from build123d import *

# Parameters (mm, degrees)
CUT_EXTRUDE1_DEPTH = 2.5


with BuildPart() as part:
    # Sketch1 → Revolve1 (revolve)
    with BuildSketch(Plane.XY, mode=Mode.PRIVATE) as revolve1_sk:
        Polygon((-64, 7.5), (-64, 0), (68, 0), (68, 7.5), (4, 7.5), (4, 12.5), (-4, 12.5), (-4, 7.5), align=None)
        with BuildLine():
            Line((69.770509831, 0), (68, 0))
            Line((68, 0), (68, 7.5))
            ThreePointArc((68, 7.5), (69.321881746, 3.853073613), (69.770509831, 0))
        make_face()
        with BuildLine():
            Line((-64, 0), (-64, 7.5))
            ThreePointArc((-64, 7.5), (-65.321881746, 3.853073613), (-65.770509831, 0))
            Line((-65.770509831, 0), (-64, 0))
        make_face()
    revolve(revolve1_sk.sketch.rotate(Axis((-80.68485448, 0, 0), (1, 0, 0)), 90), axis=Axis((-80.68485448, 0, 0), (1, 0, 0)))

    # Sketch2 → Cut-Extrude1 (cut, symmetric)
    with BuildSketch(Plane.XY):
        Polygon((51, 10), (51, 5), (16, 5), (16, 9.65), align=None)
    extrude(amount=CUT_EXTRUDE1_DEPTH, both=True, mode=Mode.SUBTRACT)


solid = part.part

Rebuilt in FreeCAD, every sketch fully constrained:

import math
import FreeCAD as App
import Part
import Sketcher
from FreeCAD import Vector
Q = App.Units.Quantity


def add_polygon(sketch, points):
    """Adds a closed chain of lines whose ends are joined by coincident constraints."""
    first, n = sketch.GeometryCount, len(points)
    for a, b in zip(points, points[1:] + points[:1]):
        sketch.addGeometry(Part.LineSegment(App.Vector(*a, 0), App.Vector(*b, 0)), False)
    for i in range(n):
        sketch.addConstraint(Sketcher.Constraint("Coincident", first + i, 2, first + (i + 1) % n, 1))

doc = App.newDocument("Part")
body = doc.addObject("PartDesign::Body", "Body")

# Sketch on XY plane
sketch1 = body.newObject("Sketcher::SketchObject", "Sketch")
sketch1.AttachmentSupport = (doc.getObject("XY_Plane"), [""])
sketch1.MapMode = "FlatFace"
sketch1.addGeometry([
    Part.ArcOfCircle(Part.Circle(Vector(53, 0, 0), Vector(0, 0, 1), 17), math.radians(0), math.radians(27)),  # 0
    Part.LineSegment(Vector(68, 8, 0), Vector(4, 8, 0)),  # 1
    Part.LineSegment(Vector(4, 8, 0), Vector(4, 12, 0)),  # 2
    Part.LineSegment(Vector(4, 12, 0), Vector(-4, 12, 0)),  # 3
    Part.LineSegment(Vector(-4, 12, 0), Vector(-4, 8, 0)),  # 4
    Part.LineSegment(Vector(-4, 8, 0), Vector(-64, 8, 0)),  # 5
    Part.ArcOfCircle(Part.Circle(Vector(-49, 0, 0), Vector(0, 0, 1), 17), math.radians(153), math.radians(180)),  # 6
    Part.LineSegment(Vector(-66, 0, 0), Vector(70, 0, 0)),  # 7
], False)
sketch1.addConstraint([
    Sketcher.Constraint("Coincident", 0, 2, 1, 1),
    Sketcher.Constraint("Coincident", 1, 2, 2, 1),
    Sketcher.Constraint("Coincident", 2, 2, 3, 1),
    Sketcher.Constraint("Coincident", 3, 2, 4, 1),
    Sketcher.Constraint("Coincident", 4, 2, 5, 1),
    Sketcher.Constraint("Coincident", 5, 2, 6, 1),
    Sketcher.Constraint("Coincident", 6, 2, 7, 1),
    Sketcher.Constraint("Coincident", 7, 2, 0, 1),
    Sketcher.Constraint("Horizontal", 1),
    Sketcher.Constraint("Vertical", 2),
    Sketcher.Constraint("Horizontal", 3),
    Sketcher.Constraint("Vertical", 4),
    Sketcher.Constraint("Horizontal", 5),
    Sketcher.Constraint("Horizontal", 7),
    Sketcher.Constraint("Equal", 0, 6),
    Sketcher.Constraint("Symmetric", 1, 2, 4, 2, -2),
    Sketcher.Constraint("PointOnObject", 0, 3, -1),
    Sketcher.Constraint("PointOnObject", 6, 3, -1),
    Sketcher.Constraint("PointOnObject", 6, 2, -1),
    Sketcher.Constraint("DistanceX", 1, 2, 1, 1, Q("64 mm")),
    Sketcher.Constraint("DistanceX", 3, 2, 3, 1, Q("8 mm")),
    Sketcher.Constraint("DistanceX", 5, 2, 5, 1, Q("60 mm")),
    Sketcher.Constraint("DistanceY", 2, 1, 2, 2, Q("5 mm")),
    Sketcher.Constraint("DistanceX", -1, 1, 0, 3, Q("53 mm")),
    Sketcher.Constraint("DistanceY", -1, 1, 0, 2, Q("7.5 mm")),
])
revolution = body.newObject("PartDesign::Revolution", "Revolution")
revolution.Profile = sketch1
revolution.ReferenceAxis = (sketch1, ["H_Axis"])
revolution.Angle = 360

# Sketch on XY plane
sketch2 = body.newObject("Sketcher::SketchObject", "Sketch001")
sketch2.AttachmentSupport = (doc.getObject("XY_Plane"), [""])
sketch2.MapMode = "FlatFace"
add_polygon(sketch2, [(51, 5), (51, 10), (16, 9.7), (16, 5)])  # lines 0-3
sketch2.addConstraint([
    Sketcher.Constraint("Vertical", 0),
    Sketcher.Constraint("Vertical", 2),
    Sketcher.Constraint("Horizontal", 3),
    Sketcher.Constraint("DistanceX", 3, 1, 3, 2, Q("35 mm")),
    Sketcher.Constraint("DistanceY", 0, 1, 0, 2, Q("5 mm")),
    Sketcher.Constraint("DistanceX", -1, 1, 0, 2, Q("51 mm")),
    Sketcher.Constraint("DistanceY", -1, 1, 0, 2, Q("10 mm")),
    Sketcher.Constraint("DistanceY", 2, 2, 2, 1, Q("4.65 mm")),
])
pocket1 = body.newObject("PartDesign::Pocket", "Pocket")
pocket1.Profile = sketch2
pocket1.Length = 5
pocket1.Midplane = True

doc.recompute()
